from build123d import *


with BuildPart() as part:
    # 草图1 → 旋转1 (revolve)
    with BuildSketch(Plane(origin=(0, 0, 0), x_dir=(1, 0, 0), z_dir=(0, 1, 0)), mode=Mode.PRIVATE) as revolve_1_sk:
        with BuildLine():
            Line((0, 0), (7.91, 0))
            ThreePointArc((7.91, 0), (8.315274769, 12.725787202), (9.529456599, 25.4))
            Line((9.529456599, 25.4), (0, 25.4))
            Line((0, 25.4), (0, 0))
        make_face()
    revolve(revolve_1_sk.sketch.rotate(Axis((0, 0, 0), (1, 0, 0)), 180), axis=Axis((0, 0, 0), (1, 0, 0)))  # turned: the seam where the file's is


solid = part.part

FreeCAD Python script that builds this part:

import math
import FreeCAD as App
import Part
import Sketcher

V = App.Vector
Q = App.Units.Quantity

doc = App.newDocument("Part")
body = doc.addObject("PartDesign::Body", "Body")

sketch1 = body.newObject("Sketcher::SketchObject", "Sketch")
sketch1.AttachmentSupport = (doc.getObject("XZ_Plane"), [""])
sketch1.MapMode = "FlatFace"
sketch1.addGeometry(Part.LineSegment(V(0, 0, 0), V(8, 0, 0)), False)
sketch1.addGeometry(Part.ArcOfCircle(Part.Circle(V(208, 0, 0), V(0, 0, 1), 200), math.radians(-180), math.radians(-172.7)), False)
sketch1.addGeometry(Part.LineSegment(V(10, -25, 0), V(0, -25, 0)), False)
sketch1.addGeometry(Part.LineSegment(V(0, -25, 0), V(0, 0, 0)), False)
sketch1.addConstraint(Sketcher.Constraint("Coincident", 0, 2, 1, 1))
sketch1.addConstraint(Sketcher.Constraint("Coincident", 1, 2, 2, 1))
sketch1.addConstraint(Sketcher.Constraint("Coincident", 2, 2, 3, 1))
sketch1.addConstraint(Sketcher.Constraint("Coincident", 3, 2, 0, 1))
sketch1.addConstraint(Sketcher.Constraint("Horizontal", 0))
sketch1.addConstraint(Sketcher.Constraint("Horizontal", 2))
sketch1.addConstraint(Sketcher.Constraint("Vertical", 3))
sketch1.addConstraint(Sketcher.Constraint("Coincident", 3, 2, -1, 1))
sketch1.addConstraint(Sketcher.Constraint("PointOnObject", 1, 3, -1))
sketch1.addConstraint(Sketcher.Constraint("Radius", 1, Q("200 mm")))
sketch1.addConstraint(Sketcher.Constraint("DistanceY", 3, 1, 3, 2, Q("25.4 mm")))
sketch1.addConstraint(Sketcher.Constraint("DistanceX", 0, 1, 0, 2, Q("7.91 mm")))
revolution = body.newObject("PartDesign::Revolution", "Revolution")
revolution.Profile = sketch1
revolution.ReferenceAxis = (sketch1, ["H_Axis"])
revolution.Angle = 360

doc.recompute()
